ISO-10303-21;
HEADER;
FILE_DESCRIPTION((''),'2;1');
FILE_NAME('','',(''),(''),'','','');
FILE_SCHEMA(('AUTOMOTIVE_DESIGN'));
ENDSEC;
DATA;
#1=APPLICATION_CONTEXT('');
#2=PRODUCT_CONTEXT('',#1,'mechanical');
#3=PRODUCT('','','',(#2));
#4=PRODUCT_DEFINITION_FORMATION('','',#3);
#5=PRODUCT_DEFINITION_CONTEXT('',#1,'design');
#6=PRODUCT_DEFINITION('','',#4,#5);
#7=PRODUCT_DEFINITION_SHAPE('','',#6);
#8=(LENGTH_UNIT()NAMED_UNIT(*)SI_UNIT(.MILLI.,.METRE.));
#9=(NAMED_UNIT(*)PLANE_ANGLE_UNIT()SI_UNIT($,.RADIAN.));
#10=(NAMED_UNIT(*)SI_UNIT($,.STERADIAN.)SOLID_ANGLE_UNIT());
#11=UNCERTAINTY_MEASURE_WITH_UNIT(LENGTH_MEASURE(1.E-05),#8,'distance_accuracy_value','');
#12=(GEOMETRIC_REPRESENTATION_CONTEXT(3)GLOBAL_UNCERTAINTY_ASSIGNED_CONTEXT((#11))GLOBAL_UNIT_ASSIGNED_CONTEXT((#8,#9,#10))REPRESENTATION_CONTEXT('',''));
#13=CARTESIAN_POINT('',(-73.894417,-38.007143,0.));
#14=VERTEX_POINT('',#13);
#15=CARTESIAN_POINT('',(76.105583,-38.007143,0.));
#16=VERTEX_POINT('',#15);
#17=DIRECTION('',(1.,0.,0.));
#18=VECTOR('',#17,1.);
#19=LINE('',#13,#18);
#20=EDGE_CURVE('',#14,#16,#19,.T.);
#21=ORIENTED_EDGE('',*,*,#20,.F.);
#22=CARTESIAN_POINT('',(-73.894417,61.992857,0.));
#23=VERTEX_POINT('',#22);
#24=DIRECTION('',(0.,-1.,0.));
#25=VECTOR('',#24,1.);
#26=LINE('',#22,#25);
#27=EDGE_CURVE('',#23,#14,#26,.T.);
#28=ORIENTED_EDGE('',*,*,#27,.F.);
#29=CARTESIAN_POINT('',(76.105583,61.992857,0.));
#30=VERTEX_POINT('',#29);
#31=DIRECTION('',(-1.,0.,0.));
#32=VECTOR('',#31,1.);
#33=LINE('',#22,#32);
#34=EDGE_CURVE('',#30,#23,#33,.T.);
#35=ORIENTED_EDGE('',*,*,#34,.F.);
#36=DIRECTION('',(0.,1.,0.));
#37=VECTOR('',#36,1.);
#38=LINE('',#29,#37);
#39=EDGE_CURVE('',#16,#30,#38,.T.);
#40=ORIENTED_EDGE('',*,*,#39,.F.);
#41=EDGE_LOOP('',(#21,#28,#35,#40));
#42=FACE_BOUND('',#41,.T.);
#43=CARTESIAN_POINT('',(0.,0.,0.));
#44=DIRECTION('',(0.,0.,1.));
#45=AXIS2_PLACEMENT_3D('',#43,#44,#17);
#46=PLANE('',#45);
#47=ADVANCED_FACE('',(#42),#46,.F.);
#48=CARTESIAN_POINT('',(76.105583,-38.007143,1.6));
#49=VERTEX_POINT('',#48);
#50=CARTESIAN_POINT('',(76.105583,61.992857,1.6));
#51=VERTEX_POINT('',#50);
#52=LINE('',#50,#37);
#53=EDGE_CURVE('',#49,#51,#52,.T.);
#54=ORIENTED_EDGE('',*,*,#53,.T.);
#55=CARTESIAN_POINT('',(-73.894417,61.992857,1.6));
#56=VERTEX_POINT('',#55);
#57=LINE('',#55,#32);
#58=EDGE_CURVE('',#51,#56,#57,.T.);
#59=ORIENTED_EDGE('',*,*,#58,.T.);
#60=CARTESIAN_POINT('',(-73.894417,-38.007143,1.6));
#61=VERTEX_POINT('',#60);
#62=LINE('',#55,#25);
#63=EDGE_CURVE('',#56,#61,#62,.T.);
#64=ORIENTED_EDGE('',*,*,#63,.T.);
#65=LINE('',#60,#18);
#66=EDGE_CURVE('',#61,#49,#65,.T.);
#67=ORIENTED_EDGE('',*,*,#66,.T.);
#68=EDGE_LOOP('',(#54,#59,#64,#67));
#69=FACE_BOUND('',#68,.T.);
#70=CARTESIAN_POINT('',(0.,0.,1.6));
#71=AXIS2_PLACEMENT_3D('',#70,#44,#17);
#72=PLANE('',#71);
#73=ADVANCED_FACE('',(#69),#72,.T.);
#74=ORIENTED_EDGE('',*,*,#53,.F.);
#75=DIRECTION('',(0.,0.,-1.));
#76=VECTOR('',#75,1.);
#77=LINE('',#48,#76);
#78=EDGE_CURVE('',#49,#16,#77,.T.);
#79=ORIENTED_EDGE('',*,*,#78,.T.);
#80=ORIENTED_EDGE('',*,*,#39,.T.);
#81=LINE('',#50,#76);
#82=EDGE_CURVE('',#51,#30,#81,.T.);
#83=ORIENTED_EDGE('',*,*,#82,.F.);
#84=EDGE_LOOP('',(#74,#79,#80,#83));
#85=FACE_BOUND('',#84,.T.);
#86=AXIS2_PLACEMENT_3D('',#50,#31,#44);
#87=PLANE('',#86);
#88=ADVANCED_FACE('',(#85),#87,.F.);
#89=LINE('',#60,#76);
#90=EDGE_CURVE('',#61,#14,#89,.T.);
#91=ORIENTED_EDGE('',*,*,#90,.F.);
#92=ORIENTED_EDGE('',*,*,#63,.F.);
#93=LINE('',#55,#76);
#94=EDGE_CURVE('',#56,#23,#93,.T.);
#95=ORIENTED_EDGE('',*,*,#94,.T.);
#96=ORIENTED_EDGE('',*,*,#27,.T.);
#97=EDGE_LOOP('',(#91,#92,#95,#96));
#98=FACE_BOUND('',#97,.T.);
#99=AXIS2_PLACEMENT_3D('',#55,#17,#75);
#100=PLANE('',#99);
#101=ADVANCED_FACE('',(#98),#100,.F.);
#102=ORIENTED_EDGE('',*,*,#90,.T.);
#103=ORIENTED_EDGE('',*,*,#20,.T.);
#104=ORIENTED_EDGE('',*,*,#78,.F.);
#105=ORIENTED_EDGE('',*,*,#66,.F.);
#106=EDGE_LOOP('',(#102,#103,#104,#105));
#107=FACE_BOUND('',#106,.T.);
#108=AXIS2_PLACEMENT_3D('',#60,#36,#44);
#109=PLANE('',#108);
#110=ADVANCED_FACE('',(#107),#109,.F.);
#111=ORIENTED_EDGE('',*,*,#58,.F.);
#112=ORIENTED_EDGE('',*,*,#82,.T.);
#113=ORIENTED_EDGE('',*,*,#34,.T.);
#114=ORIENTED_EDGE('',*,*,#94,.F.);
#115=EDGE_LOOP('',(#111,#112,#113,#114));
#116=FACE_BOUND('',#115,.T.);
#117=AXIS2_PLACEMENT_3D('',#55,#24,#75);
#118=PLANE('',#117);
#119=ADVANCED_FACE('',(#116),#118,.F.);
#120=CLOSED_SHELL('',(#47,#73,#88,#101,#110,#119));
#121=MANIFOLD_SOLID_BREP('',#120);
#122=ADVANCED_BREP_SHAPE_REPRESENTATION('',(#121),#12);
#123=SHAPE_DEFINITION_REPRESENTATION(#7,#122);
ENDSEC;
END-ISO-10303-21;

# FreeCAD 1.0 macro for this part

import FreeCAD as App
import Part
import Sketcher


def add_polygon(sketch, points):
    """Adds a closed chain of lines whose ends are joined by coincident constraints."""
    first, n = sketch.GeometryCount, len(points)
    for a, b in zip(points, points[1:] + points[:1]):
        sketch.addGeometry(Part.LineSegment(App.Vector(*a, 0), App.Vector(*b, 0)), False)
    for i in range(n):
        sketch.addConstraint(Sketcher.Constraint("Coincident", first + i, 2, first + (i + 1) % n, 1))

doc = App.newDocument("Part")
body = doc.addObject("PartDesign::Body", "Body")

# Sketch on XY plane
sketch1 = body.newObject("Sketcher::SketchObject", "Sketch")
sketch1.AttachmentSupport = (doc.getObject("XY_Plane"), [""])
sketch1.MapMode = "FlatFace"
add_polygon(sketch1, [(-74, 62), (-74, -38), (76, -38), (76, 62)])  # lines 0-3
sketch1.addConstraint([
    Sketcher.Constraint("Vertical", 0),
    Sketcher.Constraint("Horizontal", 1),
    Sketcher.Constraint("Vertical", 2),
    Sketcher.Constraint("Horizontal", 3),
    Sketcher.Constraint("DistanceX", 1, 1, 1, 2, 150.0),
    Sketcher.Constraint("DistanceY", 0, 2, 0, 1, 100.0),
    Sketcher.Constraint("DistanceX", 0, 2, -1, 1, 73.894417),
    Sketcher.Constraint("DistanceY", 0, 2, -1, 1, 38.007143),
])
pad1 = body.newObject("PartDesign::Pad", "Pad")
pad1.Profile = sketch1
pad1.Length = 1.6

doc.recompute()
